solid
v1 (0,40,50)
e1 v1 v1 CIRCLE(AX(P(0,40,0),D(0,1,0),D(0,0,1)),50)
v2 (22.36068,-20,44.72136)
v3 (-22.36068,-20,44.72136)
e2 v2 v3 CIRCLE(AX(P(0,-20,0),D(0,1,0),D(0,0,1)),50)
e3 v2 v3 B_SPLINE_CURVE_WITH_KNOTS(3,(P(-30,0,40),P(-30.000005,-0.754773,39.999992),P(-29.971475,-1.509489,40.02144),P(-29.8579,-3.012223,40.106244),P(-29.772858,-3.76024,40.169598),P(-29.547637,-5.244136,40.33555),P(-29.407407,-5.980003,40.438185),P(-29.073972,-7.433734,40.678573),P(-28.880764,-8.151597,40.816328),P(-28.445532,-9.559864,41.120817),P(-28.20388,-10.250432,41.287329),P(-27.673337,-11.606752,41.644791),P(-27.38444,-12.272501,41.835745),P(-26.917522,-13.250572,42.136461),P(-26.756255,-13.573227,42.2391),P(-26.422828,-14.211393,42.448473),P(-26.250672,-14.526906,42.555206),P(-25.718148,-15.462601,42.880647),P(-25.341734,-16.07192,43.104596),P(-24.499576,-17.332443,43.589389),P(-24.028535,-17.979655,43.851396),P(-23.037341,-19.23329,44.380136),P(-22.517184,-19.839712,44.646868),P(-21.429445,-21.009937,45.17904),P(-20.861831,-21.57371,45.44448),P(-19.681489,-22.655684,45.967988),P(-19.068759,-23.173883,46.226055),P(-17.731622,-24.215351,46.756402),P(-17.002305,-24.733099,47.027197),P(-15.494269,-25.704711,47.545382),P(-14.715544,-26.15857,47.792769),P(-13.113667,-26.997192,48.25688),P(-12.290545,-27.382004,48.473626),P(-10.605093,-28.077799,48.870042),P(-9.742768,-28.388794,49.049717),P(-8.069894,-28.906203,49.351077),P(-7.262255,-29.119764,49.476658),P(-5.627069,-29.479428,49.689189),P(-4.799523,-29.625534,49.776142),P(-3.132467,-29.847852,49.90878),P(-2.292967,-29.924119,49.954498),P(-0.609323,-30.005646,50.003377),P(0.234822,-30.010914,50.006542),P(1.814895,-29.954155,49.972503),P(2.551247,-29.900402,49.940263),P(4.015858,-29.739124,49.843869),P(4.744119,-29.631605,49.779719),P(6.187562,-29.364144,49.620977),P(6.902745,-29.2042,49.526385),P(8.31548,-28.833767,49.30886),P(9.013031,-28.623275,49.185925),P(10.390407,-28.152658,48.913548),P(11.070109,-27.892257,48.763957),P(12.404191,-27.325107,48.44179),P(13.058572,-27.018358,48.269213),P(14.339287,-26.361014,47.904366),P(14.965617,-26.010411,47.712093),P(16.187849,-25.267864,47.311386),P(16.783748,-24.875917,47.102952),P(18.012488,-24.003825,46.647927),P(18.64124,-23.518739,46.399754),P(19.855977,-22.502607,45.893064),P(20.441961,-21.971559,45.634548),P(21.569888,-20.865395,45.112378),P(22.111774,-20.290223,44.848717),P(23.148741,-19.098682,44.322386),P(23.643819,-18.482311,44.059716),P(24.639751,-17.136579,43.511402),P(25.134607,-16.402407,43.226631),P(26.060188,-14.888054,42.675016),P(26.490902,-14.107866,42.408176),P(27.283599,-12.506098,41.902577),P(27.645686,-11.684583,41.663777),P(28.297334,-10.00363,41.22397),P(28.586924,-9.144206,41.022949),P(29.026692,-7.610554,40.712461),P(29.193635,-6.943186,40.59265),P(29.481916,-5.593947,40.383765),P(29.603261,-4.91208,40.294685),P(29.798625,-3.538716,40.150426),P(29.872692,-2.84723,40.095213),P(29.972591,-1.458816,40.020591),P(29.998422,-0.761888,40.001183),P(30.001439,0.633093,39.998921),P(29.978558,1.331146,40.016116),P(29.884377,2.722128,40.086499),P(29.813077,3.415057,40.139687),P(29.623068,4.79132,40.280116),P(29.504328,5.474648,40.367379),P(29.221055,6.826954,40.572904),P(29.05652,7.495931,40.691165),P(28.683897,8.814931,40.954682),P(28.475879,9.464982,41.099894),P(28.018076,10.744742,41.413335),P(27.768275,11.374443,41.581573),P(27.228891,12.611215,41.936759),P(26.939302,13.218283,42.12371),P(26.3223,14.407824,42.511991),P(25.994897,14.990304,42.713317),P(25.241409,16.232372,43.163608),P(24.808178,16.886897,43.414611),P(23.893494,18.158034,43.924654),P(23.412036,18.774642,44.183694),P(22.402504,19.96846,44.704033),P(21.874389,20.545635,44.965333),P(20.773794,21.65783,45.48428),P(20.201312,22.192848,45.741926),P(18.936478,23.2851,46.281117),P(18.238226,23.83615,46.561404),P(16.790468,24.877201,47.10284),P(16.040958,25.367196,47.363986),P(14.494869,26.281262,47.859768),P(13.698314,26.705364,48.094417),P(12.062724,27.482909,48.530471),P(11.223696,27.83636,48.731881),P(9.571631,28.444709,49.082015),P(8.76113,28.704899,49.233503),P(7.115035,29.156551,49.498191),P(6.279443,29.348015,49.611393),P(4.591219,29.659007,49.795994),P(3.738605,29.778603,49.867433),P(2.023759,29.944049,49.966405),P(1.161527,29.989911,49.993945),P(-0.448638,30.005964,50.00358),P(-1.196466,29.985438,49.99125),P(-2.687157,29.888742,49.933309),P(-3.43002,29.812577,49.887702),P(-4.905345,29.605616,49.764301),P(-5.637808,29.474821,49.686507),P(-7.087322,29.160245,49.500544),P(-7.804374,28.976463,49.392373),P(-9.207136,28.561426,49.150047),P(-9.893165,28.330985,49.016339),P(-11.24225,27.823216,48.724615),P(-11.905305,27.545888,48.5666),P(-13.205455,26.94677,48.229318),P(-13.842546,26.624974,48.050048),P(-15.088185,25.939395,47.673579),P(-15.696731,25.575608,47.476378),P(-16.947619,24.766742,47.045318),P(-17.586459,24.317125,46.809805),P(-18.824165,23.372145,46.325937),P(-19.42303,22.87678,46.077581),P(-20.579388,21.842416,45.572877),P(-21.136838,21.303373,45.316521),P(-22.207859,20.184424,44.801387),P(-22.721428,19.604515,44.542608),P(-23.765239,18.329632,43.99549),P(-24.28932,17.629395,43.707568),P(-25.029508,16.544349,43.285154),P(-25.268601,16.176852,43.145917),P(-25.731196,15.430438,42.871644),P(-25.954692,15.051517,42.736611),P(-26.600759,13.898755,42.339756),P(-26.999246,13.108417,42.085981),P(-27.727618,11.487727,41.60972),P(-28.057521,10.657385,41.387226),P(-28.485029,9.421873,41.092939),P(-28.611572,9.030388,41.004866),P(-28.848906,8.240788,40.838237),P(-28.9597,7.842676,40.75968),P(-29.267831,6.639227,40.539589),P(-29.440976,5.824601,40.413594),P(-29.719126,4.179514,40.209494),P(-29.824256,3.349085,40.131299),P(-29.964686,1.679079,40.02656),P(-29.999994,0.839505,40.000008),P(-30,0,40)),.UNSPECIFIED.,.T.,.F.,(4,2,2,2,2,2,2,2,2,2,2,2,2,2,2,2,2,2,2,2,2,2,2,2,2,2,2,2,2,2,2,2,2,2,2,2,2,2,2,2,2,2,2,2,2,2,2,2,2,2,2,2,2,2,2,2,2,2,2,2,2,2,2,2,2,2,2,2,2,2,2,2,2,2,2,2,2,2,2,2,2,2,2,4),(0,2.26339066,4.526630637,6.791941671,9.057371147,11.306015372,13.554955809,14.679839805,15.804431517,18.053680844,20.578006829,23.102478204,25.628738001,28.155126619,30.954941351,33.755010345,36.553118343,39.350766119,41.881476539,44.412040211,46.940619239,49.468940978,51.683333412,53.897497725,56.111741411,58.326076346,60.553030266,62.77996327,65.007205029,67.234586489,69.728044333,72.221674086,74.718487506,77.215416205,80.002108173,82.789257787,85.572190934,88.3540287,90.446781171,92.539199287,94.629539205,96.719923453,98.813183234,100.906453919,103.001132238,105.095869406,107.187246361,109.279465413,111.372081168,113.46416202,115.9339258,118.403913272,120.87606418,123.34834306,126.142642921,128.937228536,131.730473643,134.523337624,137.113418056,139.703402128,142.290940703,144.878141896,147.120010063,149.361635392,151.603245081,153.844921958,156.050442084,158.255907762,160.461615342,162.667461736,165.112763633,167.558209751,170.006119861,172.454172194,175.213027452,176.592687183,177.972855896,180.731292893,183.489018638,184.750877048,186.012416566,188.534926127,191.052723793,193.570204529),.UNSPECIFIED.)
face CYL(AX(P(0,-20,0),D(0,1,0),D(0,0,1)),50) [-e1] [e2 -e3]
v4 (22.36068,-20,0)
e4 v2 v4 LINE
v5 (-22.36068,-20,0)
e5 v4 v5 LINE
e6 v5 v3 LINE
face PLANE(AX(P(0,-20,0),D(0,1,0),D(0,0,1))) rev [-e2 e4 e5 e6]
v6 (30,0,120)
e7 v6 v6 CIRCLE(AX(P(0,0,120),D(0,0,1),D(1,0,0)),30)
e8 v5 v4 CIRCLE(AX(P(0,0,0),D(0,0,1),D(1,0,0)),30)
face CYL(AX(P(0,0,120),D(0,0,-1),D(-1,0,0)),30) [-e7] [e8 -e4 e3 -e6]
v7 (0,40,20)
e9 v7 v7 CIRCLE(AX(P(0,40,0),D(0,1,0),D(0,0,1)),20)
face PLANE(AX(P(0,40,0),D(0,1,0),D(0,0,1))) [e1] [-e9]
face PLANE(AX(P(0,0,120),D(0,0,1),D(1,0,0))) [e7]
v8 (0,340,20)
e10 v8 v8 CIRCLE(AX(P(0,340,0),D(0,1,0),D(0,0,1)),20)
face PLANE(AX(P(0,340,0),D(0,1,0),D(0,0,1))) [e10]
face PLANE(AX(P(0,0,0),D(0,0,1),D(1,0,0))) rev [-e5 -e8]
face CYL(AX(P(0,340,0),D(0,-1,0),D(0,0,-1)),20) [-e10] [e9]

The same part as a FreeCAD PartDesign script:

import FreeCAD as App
import Part
import Sketcher

V = App.Vector
Q = App.Units.Quantity

doc = App.newDocument("Part")
params = doc.addObject("Spreadsheet::Sheet", "Params")
for row, (alias, value) in enumerate([
    ("sketch1_diameter", "60 mm"),
    ("pad1_length", "120 mm"),
    ("sketch2_diameter", "100 mm"),
    ("pad2_length", "40 mm"),
    ("pad2_length2", "20 mm"),
    ("sketch3_diameter", "40 mm"),
    ("pad3_length", "300 mm"),
], start=1):
    params.set(f"A{row}", alias)
    params.set(f"B{row}", "=" + value)
    params.setAlias(f"B{row}", alias)

body = doc.addObject("PartDesign::Body", "Body")

# Sketch on XY plane
sketch1 = body.newObject("Sketcher::SketchObject", "Sketch")
sketch1.AttachmentSupport = (doc.getObject("XY_Plane"), [""])
sketch1.MapMode = "FlatFace"
sketch1.addGeometry(Part.Circle(V(0, 0, 0), V(0, 0, 1), 30), False)
sketch1.addConstraint([
    Sketcher.Constraint("Coincident", 0, 3, -1, 1),
    Sketcher.Constraint("Diameter", 0, Q("60 mm")),
])
sketch1.setExpression("Constraints[1]", "Params.sketch1_diameter")
pad1 = body.newObject("PartDesign::Pad", "Pad")
pad1.Profile = sketch1
pad1.setExpression("Length", "Params.pad1_length")

# Sketch on XZ plane
sketch2 = body.newObject("Sketcher::SketchObject", "Sketch001")
sketch2.AttachmentSupport = (doc.getObject("XZ_Plane"), [""])
sketch2.MapMode = "FlatFace"
sketch2.addGeometry(Part.Circle(V(0, 0, 0), V(0, 0, 1), 50), False)
sketch2.addConstraint([
    Sketcher.Constraint("Coincident", 0, 3, -1, 1),
    Sketcher.Constraint("Diameter", 0, Q("100 mm")),
])
sketch2.setExpression("Constraints[1]", "Params.sketch2_diameter")
pad2 = body.newObject("PartDesign::Pad", "Pad001")
pad2.Profile = sketch2
pad2.Type = "TwoLengths"
pad2.setExpression("Length", "Params.pad2_length")
pad2.setExpression("Length2", "Params.pad2_length2")
pad2.Reversed = True

# Sketch on XZ plane
sketch3 = body.newObject("Sketcher::SketchObject", "Sketch002")
sketch3.AttachmentSupport = (doc.getObject("XZ_Plane"), [""])
sketch3.MapMode = "FlatFace"
sketch3.AttachmentOffset = App.Placement(V(0, 0, -40), App.Rotation())
sketch3.addGeometry(Part.Circle(V(0, 0, 0), V(0, 0, 1), 20), False)
sketch3.addConstraint([
    Sketcher.Constraint("Coincident", 0, 3, -1, 1),
    Sketcher.Constraint("Diameter", 0, Q("40 mm")),
])
sketch3.setExpression("Constraints[1]", "Params.sketch3_diameter")
pad3 = body.newObject("PartDesign::Pad", "Pad002")
pad3.Profile = sketch3
pad3.setExpression("Length", "Params.pad3_length")
pad3.Reversed = True

doc.recompute()
